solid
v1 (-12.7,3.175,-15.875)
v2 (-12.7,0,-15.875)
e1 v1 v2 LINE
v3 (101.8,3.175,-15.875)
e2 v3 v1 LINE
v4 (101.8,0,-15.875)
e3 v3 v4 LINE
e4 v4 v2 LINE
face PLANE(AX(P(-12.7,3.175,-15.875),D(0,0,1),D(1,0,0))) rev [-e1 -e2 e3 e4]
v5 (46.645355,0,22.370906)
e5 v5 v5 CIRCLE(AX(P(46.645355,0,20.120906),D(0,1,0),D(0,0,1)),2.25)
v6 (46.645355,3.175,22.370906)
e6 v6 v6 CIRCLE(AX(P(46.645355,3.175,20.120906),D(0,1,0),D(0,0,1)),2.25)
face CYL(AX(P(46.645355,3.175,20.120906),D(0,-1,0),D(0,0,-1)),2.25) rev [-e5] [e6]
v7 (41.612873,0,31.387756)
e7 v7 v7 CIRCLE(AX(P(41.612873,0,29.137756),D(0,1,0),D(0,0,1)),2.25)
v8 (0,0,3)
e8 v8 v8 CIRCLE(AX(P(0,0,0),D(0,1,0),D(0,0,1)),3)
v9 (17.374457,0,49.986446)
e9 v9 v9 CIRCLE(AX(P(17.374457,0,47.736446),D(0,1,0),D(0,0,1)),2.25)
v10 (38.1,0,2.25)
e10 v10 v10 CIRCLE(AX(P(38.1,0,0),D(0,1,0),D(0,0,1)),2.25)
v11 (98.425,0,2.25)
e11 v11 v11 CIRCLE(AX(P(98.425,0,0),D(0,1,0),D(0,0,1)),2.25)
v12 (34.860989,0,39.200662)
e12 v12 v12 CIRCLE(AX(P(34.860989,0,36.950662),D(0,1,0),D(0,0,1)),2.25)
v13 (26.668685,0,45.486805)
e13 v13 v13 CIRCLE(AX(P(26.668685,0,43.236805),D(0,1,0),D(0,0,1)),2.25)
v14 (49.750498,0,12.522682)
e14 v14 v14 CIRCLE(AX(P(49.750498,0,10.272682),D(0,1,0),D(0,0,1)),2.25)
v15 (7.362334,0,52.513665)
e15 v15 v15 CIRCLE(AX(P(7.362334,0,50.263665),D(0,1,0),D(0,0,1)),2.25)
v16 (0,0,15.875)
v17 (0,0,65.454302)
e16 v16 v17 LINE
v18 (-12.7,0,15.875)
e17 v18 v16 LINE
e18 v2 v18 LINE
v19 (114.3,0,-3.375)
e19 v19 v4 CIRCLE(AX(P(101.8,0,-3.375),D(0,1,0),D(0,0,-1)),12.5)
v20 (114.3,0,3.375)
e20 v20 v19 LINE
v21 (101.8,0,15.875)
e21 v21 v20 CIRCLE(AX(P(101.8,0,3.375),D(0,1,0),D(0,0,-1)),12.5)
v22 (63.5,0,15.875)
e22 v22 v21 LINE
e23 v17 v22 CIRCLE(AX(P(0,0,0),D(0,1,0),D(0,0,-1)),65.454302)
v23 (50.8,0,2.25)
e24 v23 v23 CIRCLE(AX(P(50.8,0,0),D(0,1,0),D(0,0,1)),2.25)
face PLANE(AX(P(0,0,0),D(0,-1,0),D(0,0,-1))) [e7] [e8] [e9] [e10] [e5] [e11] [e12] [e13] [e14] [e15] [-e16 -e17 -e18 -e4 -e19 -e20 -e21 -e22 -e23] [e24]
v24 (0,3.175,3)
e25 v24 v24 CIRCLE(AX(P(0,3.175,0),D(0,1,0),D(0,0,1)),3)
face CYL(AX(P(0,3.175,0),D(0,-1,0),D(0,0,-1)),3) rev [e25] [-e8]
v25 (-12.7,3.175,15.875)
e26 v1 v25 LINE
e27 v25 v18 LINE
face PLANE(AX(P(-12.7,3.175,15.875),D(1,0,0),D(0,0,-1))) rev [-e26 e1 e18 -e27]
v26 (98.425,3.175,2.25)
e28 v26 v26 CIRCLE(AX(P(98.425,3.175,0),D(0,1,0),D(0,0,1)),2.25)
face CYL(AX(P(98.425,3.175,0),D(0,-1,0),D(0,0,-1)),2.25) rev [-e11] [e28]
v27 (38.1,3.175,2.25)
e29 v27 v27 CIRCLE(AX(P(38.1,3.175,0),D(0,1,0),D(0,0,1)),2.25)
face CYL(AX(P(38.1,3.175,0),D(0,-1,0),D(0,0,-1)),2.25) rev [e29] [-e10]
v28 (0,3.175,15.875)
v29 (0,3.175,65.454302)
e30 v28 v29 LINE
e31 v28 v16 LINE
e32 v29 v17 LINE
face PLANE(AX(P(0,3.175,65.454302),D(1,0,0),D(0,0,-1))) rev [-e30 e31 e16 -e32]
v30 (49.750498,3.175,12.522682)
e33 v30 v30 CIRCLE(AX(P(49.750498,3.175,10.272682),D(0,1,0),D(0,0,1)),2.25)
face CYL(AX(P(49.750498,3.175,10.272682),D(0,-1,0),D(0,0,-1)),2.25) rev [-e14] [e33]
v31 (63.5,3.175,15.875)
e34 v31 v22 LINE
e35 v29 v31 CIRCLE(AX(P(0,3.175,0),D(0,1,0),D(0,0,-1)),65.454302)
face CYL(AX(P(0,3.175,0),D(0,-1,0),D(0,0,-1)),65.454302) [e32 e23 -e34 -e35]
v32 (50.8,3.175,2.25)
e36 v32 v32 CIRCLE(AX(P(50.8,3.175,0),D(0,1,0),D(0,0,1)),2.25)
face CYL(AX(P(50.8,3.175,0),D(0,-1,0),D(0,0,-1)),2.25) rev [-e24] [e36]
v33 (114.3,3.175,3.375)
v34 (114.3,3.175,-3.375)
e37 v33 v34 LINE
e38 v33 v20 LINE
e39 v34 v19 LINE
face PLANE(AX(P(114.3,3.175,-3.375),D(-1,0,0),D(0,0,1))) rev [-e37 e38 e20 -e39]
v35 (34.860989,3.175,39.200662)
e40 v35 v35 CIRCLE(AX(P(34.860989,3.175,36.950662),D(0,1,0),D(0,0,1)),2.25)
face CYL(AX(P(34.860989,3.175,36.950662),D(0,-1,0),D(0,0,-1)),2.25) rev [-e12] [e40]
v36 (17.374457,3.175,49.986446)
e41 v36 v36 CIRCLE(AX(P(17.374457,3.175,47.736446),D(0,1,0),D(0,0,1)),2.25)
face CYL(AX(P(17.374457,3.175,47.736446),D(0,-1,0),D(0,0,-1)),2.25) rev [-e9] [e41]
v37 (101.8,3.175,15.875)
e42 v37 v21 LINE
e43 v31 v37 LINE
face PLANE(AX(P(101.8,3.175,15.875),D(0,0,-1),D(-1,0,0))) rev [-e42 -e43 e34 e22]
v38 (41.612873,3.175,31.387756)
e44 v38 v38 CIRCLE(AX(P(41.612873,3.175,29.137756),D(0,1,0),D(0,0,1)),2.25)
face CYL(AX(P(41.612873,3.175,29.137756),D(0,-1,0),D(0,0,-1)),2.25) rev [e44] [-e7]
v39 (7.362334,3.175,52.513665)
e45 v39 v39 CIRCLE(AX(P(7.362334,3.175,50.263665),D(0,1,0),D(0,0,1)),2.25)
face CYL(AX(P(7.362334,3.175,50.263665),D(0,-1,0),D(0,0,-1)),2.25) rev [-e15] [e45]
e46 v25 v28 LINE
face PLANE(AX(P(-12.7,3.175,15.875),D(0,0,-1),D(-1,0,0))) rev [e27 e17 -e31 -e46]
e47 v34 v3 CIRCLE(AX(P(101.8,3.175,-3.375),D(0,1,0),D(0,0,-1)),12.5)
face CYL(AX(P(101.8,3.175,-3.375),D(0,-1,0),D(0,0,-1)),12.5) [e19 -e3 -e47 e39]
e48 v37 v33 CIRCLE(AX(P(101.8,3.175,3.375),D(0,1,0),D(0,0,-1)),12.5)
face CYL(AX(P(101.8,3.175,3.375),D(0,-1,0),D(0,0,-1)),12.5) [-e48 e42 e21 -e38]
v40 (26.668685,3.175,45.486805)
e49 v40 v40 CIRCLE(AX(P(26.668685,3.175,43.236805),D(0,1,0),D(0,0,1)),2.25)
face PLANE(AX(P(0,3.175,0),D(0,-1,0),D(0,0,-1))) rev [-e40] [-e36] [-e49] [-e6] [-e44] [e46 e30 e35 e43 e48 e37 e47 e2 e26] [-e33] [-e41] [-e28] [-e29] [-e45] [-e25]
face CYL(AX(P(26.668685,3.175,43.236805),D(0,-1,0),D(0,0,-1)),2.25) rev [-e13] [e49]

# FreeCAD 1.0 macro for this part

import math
import FreeCAD as App
import Part
import Sketcher

V = App.Vector

doc = App.newDocument("Part")
params = doc.addObject("Spreadsheet::Sheet", "Params")
for row, (alias, value) in enumerate([
    ("sketch1_diameter", "6 mm"),
    ("sketch1_diameter2", "4.5 mm"),
    ("sketch1_radius", "12.5 mm"),
    ("sketch1_width", "12.7 mm"),
    ("sketch1_width2", "38.3 mm"),
    ("pad1_length", "3.175 mm"),
], start=1):
    params.set(f"A{row}", alias)
    params.set(f"B{row}", "=" + value)
    params.setAlias(f"B{row}", alias)

body = doc.addObject("PartDesign::Body", "Body")

# Sketch on XZ plane
sketch1 = body.newObject("Sketcher::SketchObject", "Sketch")
sketch1.AttachmentSupport = (doc.getObject("XZ_Plane"), [""])
sketch1.MapMode = "FlatFace"
sketch1.addGeometry([
    Part.LineSegment(V(-12.7, -15.875, 0), V(-12.7, 15.875, 0)),  # 0
    Part.LineSegment(V(-12.7, 15.875, 0), V(0, 15.875, 0)),  # 1
    Part.LineSegment(V(0, 15.875, 0), V(0, 65.454302, 0)),  # 2
    Part.ArcOfCircle(Part.Circle(V(0, 0, 0), V(0, 0, 1), 65.454302), math.radians(14.036243), math.radians(90)),  # 3
    Part.LineSegment(V(63.5, 15.875, 0), V(101.8, 15.875, 0)),  # 4
    Part.ArcOfCircle(Part.Circle(V(101.8, 3.375, 0), V(0, 0, 1), 12.5), math.radians(0), math.radians(90)),  # 5
    Part.LineSegment(V(114.3, 3.375, 0), V(114.3, -3.375, 0)),  # 6
    Part.ArcOfCircle(Part.Circle(V(101.8, -3.375, 0), V(0, 0, 1), 12.5), math.radians(-90), math.radians(0)),  # 7
    Part.LineSegment(V(101.8, -15.875, 0), V(-12.7, -15.875, 0)),  # 8
    Part.Circle(V(26.668685, 43.236805, 0), V(0, 0, 1), 2.25),  # 9
    Part.Circle(V(17.374457, 47.736446, 0), V(0, 0, 1), 2.25),  # 10
    Part.Circle(V(7.362334, 50.263665, 0), V(0, 0, 1), 2.25),  # 11
    Part.Circle(V(34.860989, 36.950662, 0), V(0, 0, 1), 2.25),  # 12
    Part.Circle(V(41.612873, 29.137756, 0), V(0, 0, 1), 2.25),  # 13
    Part.Circle(V(98.425, 0, 0), V(0, 0, 1), 2.25),  # 14
    Part.Circle(V(49.750498, 10.272682, 0), V(0, 0, 1), 2.25),  # 15
    Part.Circle(V(50.8, 0, 0), V(0, 0, 1), 2.25),  # 16
    Part.Circle(V(46.645355, 20.120906, 0), V(0, 0, 1), 2.25),  # 17
    Part.Circle(V(38.1, 0, 0), V(0, 0, 1), 2.25),  # 18
    Part.Circle(V(0, 0, 0), V(0, 0, 1), 3),  # 19
], False)
sketch1.addConstraint([
    Sketcher.Constraint("Coincident", 0, 2, 1, 1),
    Sketcher.Constraint("Coincident", 1, 2, 2, 1),
    Sketcher.Constraint("Coincident", 2, 2, 3, 2),
    Sketcher.Constraint("Coincident", 3, 1, 4, 1),
    Sketcher.Constraint("Tangent", 4, 2, 5, 2),
    Sketcher.Constraint("Tangent", 5, 1, 6, 1),
    Sketcher.Constraint("Tangent", 6, 2, 7, 2),
    Sketcher.Constraint("Tangent", 7, 1, 8, 1),
    Sketcher.Constraint("Coincident", 8, 2, 0, 1),
    Sketcher.Constraint("Vertical", 0),
    Sketcher.Constraint("Horizontal", 1),
    Sketcher.Constraint("Vertical", 2),
    Sketcher.Constraint("Horizontal", 4),
    Sketcher.Constraint("Vertical", 6),
    Sketcher.Constraint("Horizontal", 8),
    Sketcher.Constraint("Coincident", 3, 3, -1, 1),
    Sketcher.Constraint("Coincident", 19, 3, -1, 1),
    Sketcher.Constraint("Equal", 5, 7),
    Sketcher.Constraint("Equal", 9, 10),
    Sketcher.Constraint("Equal", 10, 11),
    Sketcher.Constraint("Equal", 11, 12),
    Sketcher.Constraint("Equal", 12, 13),
    Sketcher.Constraint("Equal", 13, 14),
    Sketcher.Constraint("Equal", 14, 15),
    Sketcher.Constraint("Equal", 15, 16),
    Sketcher.Constraint("Equal", 16, 17),
    Sketcher.Constraint("Equal", 17, 18),
    Sketcher.Constraint("PointOnObject", 14, 3, -1),
    Sketcher.Constraint("PointOnObject", 16, 3, -1),
    Sketcher.Constraint("PointOnObject", 18, 3, -1),
    Sketcher.Constraint("PointOnObject", 1, 2, -2),
    Sketcher.Constraint("Horizontal", 1, 2, 3, 1),
    Sketcher.Constraint("Diameter", 19, 6.0),
    Sketcher.Constraint("Diameter", 9, 4.5),
    Sketcher.Constraint("Radius", 5, 12.5),
    Sketcher.Constraint("DistanceX", 1, 1, 1, 2, 12.7),
    Sketcher.Constraint("DistanceX", 4, 1, 4, 2, 38.3),
    Sketcher.Constraint("DistanceX", 8, 2, 8, 1, 114.5),
    Sketcher.Constraint("DistanceY", 0, 1, 0, 2, 31.75),
    Sketcher.Constraint("DistanceX", -1, 1, 16, 3, 50.8),
    Sketcher.Constraint("DistanceX", -1, 1, 18, 3, 38.1),
    Sketcher.Constraint("Radius", 3, 65.454302),
    Sketcher.Constraint("DistanceX", -1, 1, 14, 3, 98.425),
    Sketcher.Constraint("DistanceY", 17, 3, 9, 3, 23.115898),
    Sketcher.Constraint("DistanceX", -1, 1, 12, 3, 34.860989),
    Sketcher.Constraint("DistanceY", -1, 1, 15, 3, 10.272682),
    Sketcher.Constraint("DistanceY", 9, 3, 10, 3, 4.499641),
    Sketcher.Constraint("DistanceY", 10, 3, 11, 3, 2.527219),
    Sketcher.Constraint("DistanceX", 11, 3, 9, 3, 19.306351),
    Sketcher.Constraint("DistanceX", 9, 3, 13, 3, 14.944188),
    Sketcher.Constraint("DistanceY", 13, 3, 9, 3, 14.099049),
    Sketcher.Constraint("DistanceX", 12, 3, 15, 3, 14.889508),
    Sketcher.Constraint("DistanceY", 15, 3, 12, 3, 26.67798),
    Sketcher.Constraint("DistanceX", 10, 3, 15, 3, 32.376041),
    Sketcher.Constraint("DistanceX", 13, 3, 17, 3, 5.032482),
    Sketcher.Constraint("DistanceX", -1, 1, 9, 3, 26.668685),
    Sketcher.Constraint("DistanceY", -1, 1, 9, 3, 43.236805),
])
sketch1.setExpression("Constraints[32]", "Params.sketch1_diameter")
sketch1.setExpression("Constraints[33]", "Params.sketch1_diameter2")
sketch1.setExpression("Constraints[34]", "Params.sketch1_radius")
sketch1.setExpression("Constraints[35]", "Params.sketch1_width")
sketch1.setExpression("Constraints[36]", "Params.sketch1_width2")
pad1 = body.newObject("PartDesign::Pad", "Pad")
pad1.Profile = sketch1
pad1.setExpression("Length", "Params.pad1_length")
pad1.Reversed = True

doc.recompute()
